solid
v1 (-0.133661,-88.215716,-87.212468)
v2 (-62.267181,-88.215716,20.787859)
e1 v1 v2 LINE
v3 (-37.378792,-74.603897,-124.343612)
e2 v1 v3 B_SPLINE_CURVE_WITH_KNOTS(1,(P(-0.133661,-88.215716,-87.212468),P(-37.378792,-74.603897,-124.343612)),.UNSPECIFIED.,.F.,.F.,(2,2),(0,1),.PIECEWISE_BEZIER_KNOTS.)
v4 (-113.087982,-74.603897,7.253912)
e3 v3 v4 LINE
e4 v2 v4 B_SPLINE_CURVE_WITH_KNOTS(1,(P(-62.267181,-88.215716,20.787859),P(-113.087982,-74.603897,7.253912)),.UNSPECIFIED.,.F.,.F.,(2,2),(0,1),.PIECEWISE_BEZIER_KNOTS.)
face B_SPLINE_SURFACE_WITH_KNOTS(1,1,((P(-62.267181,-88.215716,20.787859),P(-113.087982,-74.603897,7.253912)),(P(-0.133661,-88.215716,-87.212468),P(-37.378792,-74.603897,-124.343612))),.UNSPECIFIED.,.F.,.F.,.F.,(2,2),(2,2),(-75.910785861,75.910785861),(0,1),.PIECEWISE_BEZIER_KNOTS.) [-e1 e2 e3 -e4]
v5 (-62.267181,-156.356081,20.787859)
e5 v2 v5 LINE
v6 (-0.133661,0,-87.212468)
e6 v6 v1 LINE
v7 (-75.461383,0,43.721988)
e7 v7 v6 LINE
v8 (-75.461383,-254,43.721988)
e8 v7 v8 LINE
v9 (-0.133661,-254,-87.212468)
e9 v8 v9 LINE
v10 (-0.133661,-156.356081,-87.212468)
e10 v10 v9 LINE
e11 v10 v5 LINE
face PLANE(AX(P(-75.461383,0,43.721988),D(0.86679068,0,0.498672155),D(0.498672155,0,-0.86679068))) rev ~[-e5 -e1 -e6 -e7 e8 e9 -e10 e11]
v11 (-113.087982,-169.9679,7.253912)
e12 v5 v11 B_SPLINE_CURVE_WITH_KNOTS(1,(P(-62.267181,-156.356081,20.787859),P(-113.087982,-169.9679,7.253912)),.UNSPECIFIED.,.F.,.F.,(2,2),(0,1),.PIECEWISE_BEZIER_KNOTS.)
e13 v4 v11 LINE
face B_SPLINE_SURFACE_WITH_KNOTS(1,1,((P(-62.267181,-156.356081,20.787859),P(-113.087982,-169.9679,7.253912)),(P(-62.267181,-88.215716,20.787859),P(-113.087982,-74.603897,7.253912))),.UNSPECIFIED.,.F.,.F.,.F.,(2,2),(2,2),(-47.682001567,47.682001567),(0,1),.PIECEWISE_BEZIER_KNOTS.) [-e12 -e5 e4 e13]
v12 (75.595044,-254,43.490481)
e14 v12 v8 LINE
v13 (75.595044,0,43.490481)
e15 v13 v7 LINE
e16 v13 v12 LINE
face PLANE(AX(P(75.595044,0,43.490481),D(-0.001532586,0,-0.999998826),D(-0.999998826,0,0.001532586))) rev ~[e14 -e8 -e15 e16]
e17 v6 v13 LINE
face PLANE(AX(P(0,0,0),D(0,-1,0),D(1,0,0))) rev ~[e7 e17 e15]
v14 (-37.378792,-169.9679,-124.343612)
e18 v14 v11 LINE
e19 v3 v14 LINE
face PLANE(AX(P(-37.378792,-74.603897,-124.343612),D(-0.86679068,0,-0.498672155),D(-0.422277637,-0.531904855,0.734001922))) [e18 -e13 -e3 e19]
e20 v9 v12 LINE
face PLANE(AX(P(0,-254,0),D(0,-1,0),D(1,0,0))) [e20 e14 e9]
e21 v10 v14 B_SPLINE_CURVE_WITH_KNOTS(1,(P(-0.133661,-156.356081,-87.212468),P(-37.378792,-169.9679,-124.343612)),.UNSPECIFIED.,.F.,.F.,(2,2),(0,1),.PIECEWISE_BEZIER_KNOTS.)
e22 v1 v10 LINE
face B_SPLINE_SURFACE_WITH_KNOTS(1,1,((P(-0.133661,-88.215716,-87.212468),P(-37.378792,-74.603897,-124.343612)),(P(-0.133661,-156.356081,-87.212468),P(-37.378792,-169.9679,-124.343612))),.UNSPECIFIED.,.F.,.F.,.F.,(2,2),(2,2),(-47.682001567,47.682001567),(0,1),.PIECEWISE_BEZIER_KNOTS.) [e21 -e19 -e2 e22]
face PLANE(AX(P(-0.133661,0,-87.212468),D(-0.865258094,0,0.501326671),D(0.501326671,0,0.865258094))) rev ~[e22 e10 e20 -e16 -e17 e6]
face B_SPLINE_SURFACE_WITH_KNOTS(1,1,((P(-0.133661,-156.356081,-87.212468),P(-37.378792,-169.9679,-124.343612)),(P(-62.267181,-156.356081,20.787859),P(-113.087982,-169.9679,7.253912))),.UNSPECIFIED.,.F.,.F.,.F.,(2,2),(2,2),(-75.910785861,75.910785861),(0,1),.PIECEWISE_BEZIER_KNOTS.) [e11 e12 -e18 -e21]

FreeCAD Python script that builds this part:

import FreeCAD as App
import Part
import Sketcher
from FreeCAD import Vector
Q = App.Units.Quantity

doc = App.newDocument("Part")
body = doc.addObject("PartDesign::Body", "Body")

# Sketch on XZ plane
sketch1 = doc.addObject("Sketcher::SketchObject", "Sketch")
body.addObject(sketch1)
sketch1.AttachmentSupport = (doc.XZ_Plane, [""])
sketch1.MapMode = "FlatFace"
sketch1.addGeometry([
    Part.LineSegment(Vector(0, -87, 0), Vector(76, 43, 0)),
    Part.LineSegment(Vector(76, 43, 0), Vector(-75, 44, 0)),
    Part.LineSegment(Vector(-75, 44, 0), Vector(0, -87, 0)),
], False)
sketch1.addConstraint([
    Sketcher.Constraint("Coincident", 0, 2, 1, 1),
    Sketcher.Constraint("Coincident", 1, 2, 2, 1),
    Sketcher.Constraint("Coincident", 2, 2, 0, 1),
    Sketcher.Constraint("Equal", 0, 1),
    Sketcher.Constraint("Equal", 1, 2),
    Sketcher.Constraint("DistanceY", 2, 2, 1, 2, Q("5.1548999 in")),
    Sketcher.Constraint("DistanceY", -1, 1, 0, 2, Q("43.490481 mm")),
    Sketcher.Constraint("DistanceX", 2, 2, -1, 1, Q("0.133661 mm")),
    Sketcher.Constraint("DistanceY", 2, 2, -1, 1, Q("87.212468 mm")),
])
pad1 = doc.addObject("PartDesign::Pad", "Pad")
body.addObject(pad1)
pad1.Profile = sketch1
pad1.Length = Q("10 in")

# Sketch on an angled plane
sketch2 = doc.addObject("Sketcher::SketchObject", "Sketch001")
body.addObject(sketch2)
sketch2.Placement = App.Placement(Vector(-37.797522, 0, -21.74524), App.Rotation(Vector(0, -1, 0), Vector(-0.498672155, 0, 0.86679068), Vector(-0.86679068, 0, -0.498672155), "ZXY"))
sketch2.addGeometry([
    Part.LineSegment(Vector(88, 49, 0), Vector(88, -76, 0)),
    Part.LineSegment(Vector(88, -76, 0), Vector(156, -76, 0)),
    Part.LineSegment(Vector(156, -76, 0), Vector(156, 49, 0)),
    Part.LineSegment(Vector(156, 49, 0), Vector(88, 49, 0)),
], False)
sketch2.addConstraint([
    Sketcher.Constraint("Coincident", 0, 2, 1, 1),
    Sketcher.Constraint("Coincident", 1, 2, 2, 1),
    Sketcher.Constraint("Coincident", 2, 2, 3, 1),
    Sketcher.Constraint("Coincident", 3, 2, 0, 1),
    Sketcher.Constraint("Vertical", 0),
    Sketcher.Constraint("Horizontal", 1),
    Sketcher.Constraint("Vertical", 2),
    Sketcher.Constraint("Horizontal", 3),
    Sketcher.Constraint("DistanceX", 1, 1, 1, 2, Q("68.140365 mm")),
    Sketcher.Constraint("DistanceY", 0, 2, 0, 1, Q("124.597934 mm")),
    Sketcher.Constraint("DistanceX", -1, 1, 1, 2, Q("156.356081 mm")),
    Sketcher.Constraint("DistanceY", -1, 1, 2, 2, Q("49.069632 mm")),
])
pad2 = doc.addObject("PartDesign::Pad", "Pad001")
body.addObject(pad2)
pad2.Profile = sketch2
pad2.Length = Q("2 in")
pad2.TaperAngle = 15

doc.recompute()
